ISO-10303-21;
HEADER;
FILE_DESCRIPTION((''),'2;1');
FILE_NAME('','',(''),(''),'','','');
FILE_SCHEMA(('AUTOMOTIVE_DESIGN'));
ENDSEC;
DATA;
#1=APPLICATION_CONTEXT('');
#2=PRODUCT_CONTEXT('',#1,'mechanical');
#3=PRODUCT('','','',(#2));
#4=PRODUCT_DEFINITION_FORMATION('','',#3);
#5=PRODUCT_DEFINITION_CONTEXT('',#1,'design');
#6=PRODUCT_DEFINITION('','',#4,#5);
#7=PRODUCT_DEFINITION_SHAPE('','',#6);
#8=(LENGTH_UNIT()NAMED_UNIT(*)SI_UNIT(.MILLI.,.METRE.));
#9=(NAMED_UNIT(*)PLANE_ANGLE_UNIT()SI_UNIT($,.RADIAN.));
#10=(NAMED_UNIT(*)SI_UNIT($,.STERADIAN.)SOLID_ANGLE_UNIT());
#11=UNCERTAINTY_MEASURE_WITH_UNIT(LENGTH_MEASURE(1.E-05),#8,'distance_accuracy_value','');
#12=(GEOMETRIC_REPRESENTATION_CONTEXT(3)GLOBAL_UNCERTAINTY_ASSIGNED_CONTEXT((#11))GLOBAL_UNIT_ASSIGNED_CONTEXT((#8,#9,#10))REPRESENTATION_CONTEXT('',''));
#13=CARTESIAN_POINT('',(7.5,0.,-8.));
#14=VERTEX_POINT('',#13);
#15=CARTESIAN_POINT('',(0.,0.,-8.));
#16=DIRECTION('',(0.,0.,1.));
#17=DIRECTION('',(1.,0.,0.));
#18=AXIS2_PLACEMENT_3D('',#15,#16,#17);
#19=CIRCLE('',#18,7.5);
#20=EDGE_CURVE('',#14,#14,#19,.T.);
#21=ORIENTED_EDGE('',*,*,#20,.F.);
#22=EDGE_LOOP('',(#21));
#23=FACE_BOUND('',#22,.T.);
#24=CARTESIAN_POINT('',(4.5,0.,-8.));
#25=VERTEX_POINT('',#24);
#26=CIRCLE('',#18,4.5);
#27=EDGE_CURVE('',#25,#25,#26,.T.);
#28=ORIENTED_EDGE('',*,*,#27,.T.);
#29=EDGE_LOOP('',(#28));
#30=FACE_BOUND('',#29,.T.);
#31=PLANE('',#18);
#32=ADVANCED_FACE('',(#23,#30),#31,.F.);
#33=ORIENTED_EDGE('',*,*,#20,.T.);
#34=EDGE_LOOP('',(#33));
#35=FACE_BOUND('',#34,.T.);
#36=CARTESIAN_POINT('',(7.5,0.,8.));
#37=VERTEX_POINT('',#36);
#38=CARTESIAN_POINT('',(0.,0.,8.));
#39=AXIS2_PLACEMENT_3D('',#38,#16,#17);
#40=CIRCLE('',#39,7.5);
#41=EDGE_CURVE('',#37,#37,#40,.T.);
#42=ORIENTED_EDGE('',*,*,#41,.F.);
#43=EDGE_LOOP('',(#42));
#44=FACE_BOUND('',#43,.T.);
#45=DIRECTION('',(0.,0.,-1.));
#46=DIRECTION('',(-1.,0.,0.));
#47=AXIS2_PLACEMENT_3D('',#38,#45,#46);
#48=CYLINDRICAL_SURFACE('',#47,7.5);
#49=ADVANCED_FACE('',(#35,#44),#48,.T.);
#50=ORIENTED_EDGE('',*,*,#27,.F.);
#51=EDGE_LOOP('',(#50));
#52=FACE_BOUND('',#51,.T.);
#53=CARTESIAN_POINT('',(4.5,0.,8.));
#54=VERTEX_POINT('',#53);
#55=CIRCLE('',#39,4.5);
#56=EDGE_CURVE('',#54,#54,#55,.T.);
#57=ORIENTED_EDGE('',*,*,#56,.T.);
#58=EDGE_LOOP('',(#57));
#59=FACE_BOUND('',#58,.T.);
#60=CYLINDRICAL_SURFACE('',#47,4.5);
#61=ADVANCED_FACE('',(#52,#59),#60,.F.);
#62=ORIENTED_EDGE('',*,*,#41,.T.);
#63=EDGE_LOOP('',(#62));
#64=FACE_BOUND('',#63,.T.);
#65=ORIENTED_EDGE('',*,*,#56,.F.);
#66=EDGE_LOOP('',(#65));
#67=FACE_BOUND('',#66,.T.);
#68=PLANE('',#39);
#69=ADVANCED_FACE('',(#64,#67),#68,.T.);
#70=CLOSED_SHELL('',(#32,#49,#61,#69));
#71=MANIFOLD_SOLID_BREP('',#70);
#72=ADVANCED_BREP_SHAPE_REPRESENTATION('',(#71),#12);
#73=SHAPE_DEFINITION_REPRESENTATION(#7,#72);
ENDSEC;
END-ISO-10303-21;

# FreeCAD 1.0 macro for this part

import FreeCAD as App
import Part
import Sketcher

doc = App.newDocument("Part")
body = doc.addObject("PartDesign::Body", "Body")

sketch1 = body.newObject("Sketcher::SketchObject", "Sketch")
sketch1.AttachmentSupport = (doc.getObject("XY_Plane"), [""])
sketch1.MapMode = "FlatFace"
sketch1.addGeometry(Part.Circle(App.Vector(0, 0, 0), App.Vector(0, 0, 1), 7.5), False)
sketch1.addGeometry(Part.Circle(App.Vector(0, 0, 0), App.Vector(0, 0, 1), 4.5), False)
sketch1.addConstraint(Sketcher.Constraint("Coincident", 0, 3, -1, 1))
sketch1.addConstraint(Sketcher.Constraint("Coincident", 1, 3, -1, 1))
sketch1.addConstraint(Sketcher.Constraint("Diameter", 0, 15.0))
sketch1.addConstraint(Sketcher.Constraint("Diameter", 1, 9.0))
pad1 = body.newObject("PartDesign::Pad", "Pad")
pad1.Profile = sketch1
pad1.Length = 16
pad1.Midplane = True

doc.recompute()
